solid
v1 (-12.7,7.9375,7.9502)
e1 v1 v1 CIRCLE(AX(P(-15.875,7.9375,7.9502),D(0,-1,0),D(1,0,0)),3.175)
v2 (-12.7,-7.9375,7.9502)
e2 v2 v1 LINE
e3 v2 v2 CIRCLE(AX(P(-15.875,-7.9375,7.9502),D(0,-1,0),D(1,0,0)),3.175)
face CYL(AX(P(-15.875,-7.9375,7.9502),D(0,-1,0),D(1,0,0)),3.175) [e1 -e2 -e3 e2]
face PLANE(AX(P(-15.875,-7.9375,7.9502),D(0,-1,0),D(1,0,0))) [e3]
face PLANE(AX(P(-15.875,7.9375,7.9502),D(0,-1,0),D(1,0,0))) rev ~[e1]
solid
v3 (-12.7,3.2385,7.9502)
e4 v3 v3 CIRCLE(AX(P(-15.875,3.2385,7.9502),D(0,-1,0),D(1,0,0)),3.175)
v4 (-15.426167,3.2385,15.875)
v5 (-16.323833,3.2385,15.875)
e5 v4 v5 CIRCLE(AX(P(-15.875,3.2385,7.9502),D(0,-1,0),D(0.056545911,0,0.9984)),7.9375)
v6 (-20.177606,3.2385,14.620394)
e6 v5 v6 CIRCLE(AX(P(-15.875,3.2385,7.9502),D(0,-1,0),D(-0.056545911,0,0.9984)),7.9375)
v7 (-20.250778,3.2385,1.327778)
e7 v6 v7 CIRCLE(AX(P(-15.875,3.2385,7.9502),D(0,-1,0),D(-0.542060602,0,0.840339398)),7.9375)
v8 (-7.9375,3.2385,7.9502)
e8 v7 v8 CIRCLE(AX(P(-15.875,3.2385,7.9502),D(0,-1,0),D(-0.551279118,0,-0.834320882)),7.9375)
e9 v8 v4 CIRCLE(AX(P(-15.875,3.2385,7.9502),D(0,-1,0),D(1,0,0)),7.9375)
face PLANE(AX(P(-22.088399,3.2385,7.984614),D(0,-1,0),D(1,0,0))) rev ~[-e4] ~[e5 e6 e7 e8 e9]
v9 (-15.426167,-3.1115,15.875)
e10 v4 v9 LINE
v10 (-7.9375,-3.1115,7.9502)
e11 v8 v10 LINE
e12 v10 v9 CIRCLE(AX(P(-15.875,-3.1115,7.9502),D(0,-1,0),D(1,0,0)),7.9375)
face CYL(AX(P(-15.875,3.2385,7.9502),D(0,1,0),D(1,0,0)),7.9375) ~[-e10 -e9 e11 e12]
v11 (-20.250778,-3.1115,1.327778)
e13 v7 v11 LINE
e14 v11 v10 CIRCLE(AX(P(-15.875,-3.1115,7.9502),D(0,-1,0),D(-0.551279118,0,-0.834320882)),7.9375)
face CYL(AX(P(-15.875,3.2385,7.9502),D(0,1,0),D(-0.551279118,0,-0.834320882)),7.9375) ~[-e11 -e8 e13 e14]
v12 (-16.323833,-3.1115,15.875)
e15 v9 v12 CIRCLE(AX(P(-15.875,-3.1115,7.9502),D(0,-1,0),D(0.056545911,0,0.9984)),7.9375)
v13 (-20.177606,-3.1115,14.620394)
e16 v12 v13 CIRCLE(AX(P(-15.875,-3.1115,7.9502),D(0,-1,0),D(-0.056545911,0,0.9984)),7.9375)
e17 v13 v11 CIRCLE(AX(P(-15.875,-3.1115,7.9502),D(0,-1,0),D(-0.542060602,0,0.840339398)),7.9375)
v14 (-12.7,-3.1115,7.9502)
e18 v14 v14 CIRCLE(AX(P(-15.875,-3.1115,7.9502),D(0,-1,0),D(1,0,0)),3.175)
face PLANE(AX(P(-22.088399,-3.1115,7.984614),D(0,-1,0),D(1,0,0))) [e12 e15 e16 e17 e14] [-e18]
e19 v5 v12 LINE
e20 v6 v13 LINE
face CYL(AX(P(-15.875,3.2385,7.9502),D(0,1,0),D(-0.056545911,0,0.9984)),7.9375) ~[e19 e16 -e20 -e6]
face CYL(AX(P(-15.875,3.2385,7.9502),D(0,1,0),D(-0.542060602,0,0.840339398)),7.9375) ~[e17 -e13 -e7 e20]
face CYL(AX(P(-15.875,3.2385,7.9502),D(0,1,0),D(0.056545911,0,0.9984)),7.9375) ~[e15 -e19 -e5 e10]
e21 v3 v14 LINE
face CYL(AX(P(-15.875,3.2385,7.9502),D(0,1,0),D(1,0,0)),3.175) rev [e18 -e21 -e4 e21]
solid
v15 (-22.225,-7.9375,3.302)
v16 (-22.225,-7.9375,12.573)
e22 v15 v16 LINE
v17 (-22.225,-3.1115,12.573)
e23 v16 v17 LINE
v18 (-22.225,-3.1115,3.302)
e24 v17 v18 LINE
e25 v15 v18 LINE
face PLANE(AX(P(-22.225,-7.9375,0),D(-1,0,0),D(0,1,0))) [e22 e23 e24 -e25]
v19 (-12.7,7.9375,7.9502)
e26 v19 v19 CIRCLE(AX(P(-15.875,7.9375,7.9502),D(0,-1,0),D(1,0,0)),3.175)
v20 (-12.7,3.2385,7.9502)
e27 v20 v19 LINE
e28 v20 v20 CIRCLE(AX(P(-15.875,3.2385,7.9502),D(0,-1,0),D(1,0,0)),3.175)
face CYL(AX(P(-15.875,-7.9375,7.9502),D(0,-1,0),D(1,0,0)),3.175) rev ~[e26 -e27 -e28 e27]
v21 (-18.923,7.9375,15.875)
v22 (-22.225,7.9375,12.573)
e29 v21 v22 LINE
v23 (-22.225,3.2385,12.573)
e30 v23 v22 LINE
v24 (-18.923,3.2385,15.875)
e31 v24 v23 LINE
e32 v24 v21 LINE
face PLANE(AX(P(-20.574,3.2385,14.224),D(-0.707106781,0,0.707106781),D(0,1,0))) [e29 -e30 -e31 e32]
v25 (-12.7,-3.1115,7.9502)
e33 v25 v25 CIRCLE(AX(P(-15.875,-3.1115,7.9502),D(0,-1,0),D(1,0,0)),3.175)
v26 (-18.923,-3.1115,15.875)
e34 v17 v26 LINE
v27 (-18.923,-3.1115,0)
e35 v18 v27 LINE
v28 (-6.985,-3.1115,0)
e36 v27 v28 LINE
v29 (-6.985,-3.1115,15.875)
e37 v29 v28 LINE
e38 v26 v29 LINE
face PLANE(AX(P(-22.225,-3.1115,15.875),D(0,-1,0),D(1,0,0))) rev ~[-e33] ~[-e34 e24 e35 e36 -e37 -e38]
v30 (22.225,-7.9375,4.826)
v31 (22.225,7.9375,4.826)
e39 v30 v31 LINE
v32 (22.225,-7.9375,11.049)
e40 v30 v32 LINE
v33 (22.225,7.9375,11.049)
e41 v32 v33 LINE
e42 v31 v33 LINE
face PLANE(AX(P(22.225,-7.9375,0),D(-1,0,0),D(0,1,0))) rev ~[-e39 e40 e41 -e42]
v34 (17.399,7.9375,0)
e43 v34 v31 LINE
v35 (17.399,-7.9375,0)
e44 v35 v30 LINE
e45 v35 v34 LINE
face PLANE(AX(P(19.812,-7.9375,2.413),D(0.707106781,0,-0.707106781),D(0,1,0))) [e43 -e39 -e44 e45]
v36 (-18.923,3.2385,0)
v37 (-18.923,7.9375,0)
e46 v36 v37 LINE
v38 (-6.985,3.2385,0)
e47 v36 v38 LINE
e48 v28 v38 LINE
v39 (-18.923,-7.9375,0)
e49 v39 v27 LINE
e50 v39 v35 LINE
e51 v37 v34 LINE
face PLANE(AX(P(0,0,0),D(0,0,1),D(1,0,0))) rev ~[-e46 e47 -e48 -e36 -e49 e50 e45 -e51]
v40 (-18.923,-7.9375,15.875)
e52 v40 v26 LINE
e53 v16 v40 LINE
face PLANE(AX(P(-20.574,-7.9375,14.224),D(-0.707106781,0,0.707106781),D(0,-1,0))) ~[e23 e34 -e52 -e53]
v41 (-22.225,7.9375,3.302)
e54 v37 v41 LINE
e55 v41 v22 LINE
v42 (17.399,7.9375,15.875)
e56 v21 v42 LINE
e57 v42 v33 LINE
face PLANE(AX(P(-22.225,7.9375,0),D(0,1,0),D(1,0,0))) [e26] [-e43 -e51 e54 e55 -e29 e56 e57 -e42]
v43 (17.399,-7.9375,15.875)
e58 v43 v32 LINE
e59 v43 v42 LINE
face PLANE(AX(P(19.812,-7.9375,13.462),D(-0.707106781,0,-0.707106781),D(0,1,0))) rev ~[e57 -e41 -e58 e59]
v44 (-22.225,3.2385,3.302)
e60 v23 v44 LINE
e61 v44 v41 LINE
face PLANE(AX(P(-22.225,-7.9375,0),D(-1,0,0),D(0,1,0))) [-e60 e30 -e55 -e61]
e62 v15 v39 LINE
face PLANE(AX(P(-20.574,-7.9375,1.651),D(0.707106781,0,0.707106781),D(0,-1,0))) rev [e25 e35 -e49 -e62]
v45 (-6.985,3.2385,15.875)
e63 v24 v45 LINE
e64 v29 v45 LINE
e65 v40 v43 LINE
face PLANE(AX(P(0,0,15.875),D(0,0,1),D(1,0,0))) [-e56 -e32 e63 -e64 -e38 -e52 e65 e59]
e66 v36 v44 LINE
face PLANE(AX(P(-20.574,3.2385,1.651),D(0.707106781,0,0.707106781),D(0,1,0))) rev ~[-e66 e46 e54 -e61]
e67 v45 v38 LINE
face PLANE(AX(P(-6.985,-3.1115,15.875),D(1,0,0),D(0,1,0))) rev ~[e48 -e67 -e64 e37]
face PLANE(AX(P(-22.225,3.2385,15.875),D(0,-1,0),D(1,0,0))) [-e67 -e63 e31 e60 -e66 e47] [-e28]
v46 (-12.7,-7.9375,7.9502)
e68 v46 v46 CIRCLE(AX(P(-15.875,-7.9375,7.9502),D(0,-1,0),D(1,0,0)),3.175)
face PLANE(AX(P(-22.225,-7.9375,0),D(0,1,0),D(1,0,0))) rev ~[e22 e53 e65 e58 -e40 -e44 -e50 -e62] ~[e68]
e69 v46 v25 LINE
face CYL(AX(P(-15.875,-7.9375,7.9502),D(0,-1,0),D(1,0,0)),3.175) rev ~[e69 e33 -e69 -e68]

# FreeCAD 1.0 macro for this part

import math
import FreeCAD as App
import Part
import Sketcher
Q = App.Units.Quantity


def edges_at(feature, points):
    """Names of the edges that pass closest to the given points."""
    edges = feature.Shape.Edges
    near = lambda p: min(range(len(edges)), key=lambda i: edges[i].distToShape(Part.Vertex(*p))[0])
    return sorted({f"Edge{near(p) + 1}" for p in points})


def add_polygon(sketch, points):
    """Adds a closed chain of lines whose ends are joined by coincident constraints."""
    first, n = sketch.GeometryCount, len(points)
    for a, b in zip(points, points[1:] + points[:1]):
        sketch.addGeometry(Part.LineSegment(App.Vector(*a, 0), App.Vector(*b, 0)), False)
    for i in range(n):
        sketch.addConstraint(Sketcher.Constraint("Coincident", first + i, 2, first + (i + 1) % n, 1))

doc = App.newDocument("Part")
body = doc.addObject("PartDesign::Body", "Body")

sketch1 = body.newObject("Sketcher::SketchObject", "Sketch")
sketch1.AttachmentSupport = (doc.getObject("XY_Plane"), [""])
sketch1.MapMode = "FlatFace"
add_polygon(sketch1, [(-22, 8), (-22, -8), (22, -8), (22, 8)])
sketch1.addConstraint([
    Sketcher.Constraint("Vertical", 0),
    Sketcher.Constraint("Horizontal", 1),
    Sketcher.Constraint("Vertical", 2),
    Sketcher.Constraint("Horizontal", 3),
    Sketcher.Constraint("Symmetric", 0, 2, 2, 2, -1, 1),
    Sketcher.Constraint("DistanceX", 1, 1, 1, 2, Q("1.75 in")),
    Sketcher.Constraint("DistanceY", 0, 2, 0, 1, Q("0.625 in")),
])
pad1 = body.newObject("PartDesign::Pad", "Pad")
pad1.Profile = sketch1
pad1.Length = Q("0.625 in")

sketch2 = body.newObject("Sketcher::SketchObject", "Sketch001")
sketch2.AttachmentSupport = (doc.getObject("XY_Plane"), [""])
sketch2.MapMode = "FlatFace"
sketch2.AttachmentOffset = App.Placement(App.Vector(0, 0, 0.625 * 25.4), App.Rotation())
add_polygon(sketch2, [(-22, 3), (-22, -3), (-7, -3), (-7, 3)])
sketch2.addConstraint([
    Sketcher.Constraint("Vertical", 0),
    Sketcher.Constraint("Horizontal", 1),
    Sketcher.Constraint("Vertical", 2),
    Sketcher.Constraint("Horizontal", 3),
    Sketcher.Constraint("DistanceX", 1, 1, 1, 2, Q("0.6 in")),
    Sketcher.Constraint("DistanceY", 0, 2, 0, 1, Q("0.25 in")),
    Sketcher.Constraint("DistanceX", 0, 2, -1, 1, Q("0.875 in")),
    Sketcher.Constraint("DistanceY", 0, 2, -1, 1, Q("0.1225 in")),
])
pocket1 = body.newObject("PartDesign::Pocket", "Pocket")
pocket1.Profile = sketch2
pocket1.Type = "ThroughAll"

sketch3 = body.newObject("Sketcher::SketchObject", "Sketch002")
sketch3.AttachmentSupport = (doc.getObject("XZ_Plane"), [""])
sketch3.MapMode = "FlatFace"
sketch3.AttachmentOffset = App.Placement(App.Vector(0, 0, 0.3125 * 25.4), App.Rotation())
sketch3.addGeometry(Part.Circle(App.Vector(-15.9, 8, 0), App.Vector(0, 0, 1), 3.2), False)
sketch3.addConstraint([
    Sketcher.Constraint("Diameter", 0, Q("0.25 in")),
    Sketcher.Constraint("DistanceX", 0, 3, -1, 1, Q("0.625 in")),
    Sketcher.Constraint("DistanceY", -1, 1, 0, 3, Q("0.313 in")),
])
pocket2 = body.newObject("PartDesign::Pocket", "Pocket001")
pocket2.Profile = sketch3
pocket2.Type = "ThroughAll"
doc.recompute()

chamfer = body.newObject("PartDesign::Chamfer", "Chamfer")
chamfer.Base = (pocket2, edges_at(pocket2, [
    (-22.225, 5.588, 15.875),
    (-22.225, -5.524, 15.875),
    (-22.225, -5.524, 0),
    (-22.225, 5.588, 0),
]))
chamfer.Size = Q("0.13 in")
doc.recompute()

chamfer2 = body.newObject("PartDesign::Chamfer", "Chamfer001")
chamfer2.Base = (chamfer, edges_at(chamfer, [(22.225, 0, 15.875), (22.225, 0, 0)]))
chamfer2.Size = Q("0.19 in")
body2 = doc.addObject("PartDesign::Body", "Body001")

sketch4 = body2.newObject("Sketcher::SketchObject", "Sketch003")
sketch4.AttachmentSupport = (doc.getObject("XZ_Plane001"), [""])
sketch4.MapMode = "FlatFace"
sketch4.AttachmentOffset = App.Placement(App.Vector(0, 0, 0.3125 * 25.4), App.Rotation())
sketch4.addGeometry(Part.Circle(App.Vector(-15.9, 8, 0), App.Vector(0, 0, 1), 3.2), False)
sketch4.addConstraint([
    Sketcher.Constraint("Diameter", 0, Q("0.25 in")),
    Sketcher.Constraint("DistanceX", 0, 3, -1, 1, Q("0.625 in")),
    Sketcher.Constraint("DistanceY", -1, 1, 0, 3, Q("0.313 in")),
])
pad2 = body2.newObject("PartDesign::Pad", "Pad001")
pad2.Profile = sketch4
pad2.Length = Q("0.625 in")
pad2.Reversed = True
body3 = doc.addObject("PartDesign::Body", "Body002")

sketch5 = body3.newObject("Sketcher::SketchObject", "Sketch004")
sketch5.AttachmentSupport = (doc.getObject("XZ_Plane002"), [""])
sketch5.MapMode = "FlatFace"
sketch5.AttachmentOffset = App.Placement(App.Vector(0, 0, -0.1275 * 25.4), App.Rotation())
sketch5.addGeometry([
    Part.ArcOfCircle(Part.Circle(App.Vector(-15.9, 8, 0), App.Vector(0, 0, 1), 7.9), math.radians(123), math.radians(237)),
    Part.ArcOfCircle(Part.Circle(App.Vector(-15.9, 8, 0), App.Vector(0, 0, 1), 7.9), math.radians(-123), math.radians(0)),
    Part.ArcOfCircle(Part.Circle(App.Vector(-15.9, 8, 0), App.Vector(0, 0, 1), 7.9), math.radians(0), math.radians(87)),
    Part.ArcOfCircle(Part.Circle(App.Vector(-15.9, 8, 0), App.Vector(0, 0, 1), 7.9), math.radians(86.76), math.radians(93.24)),
    Part.ArcOfCircle(Part.Circle(App.Vector(-15.9, 8, 0), App.Vector(0, 0, 1), 7.9), math.radians(93), math.radians(123)),
    Part.Circle(App.Vector(-15.9, 8, 0), App.Vector(0, 0, 1), 3.2),
], False)
sketch5.addConstraint([
    Sketcher.Constraint("Tangent", 0, 2, 1, 1),
    Sketcher.Constraint("Tangent", 1, 2, 2, 1),
    Sketcher.Constraint("Tangent", 2, 2, 3, 1),
    Sketcher.Constraint("Tangent", 3, 2, 4, 1),
    Sketcher.Constraint("Tangent", 4, 2, 0, 1),
    Sketcher.Constraint("Coincident", 2, 3, 0, 3),
    Sketcher.Constraint("Coincident", 5, 3, 0, 3),
    Sketcher.Constraint("Horizontal", 5, 3, 1, 2),
    Sketcher.Constraint("Horizontal", 2, 2, 3, 2),
    Sketcher.Constraint("Diameter", 5, Q("0.25 in")),
    Sketcher.Constraint("Radius", 0, Q("0.3125 in")),
    Sketcher.Constraint("DistanceX", 0, 3, -1, 1, Q("0.625 in")),
    Sketcher.Constraint("DistanceY", -1, 1, 0, 3, Q("0.313 in")),
    Sketcher.Constraint("DistanceY", -1, 1, 2, 2, Q("0.625 in")),
    Sketcher.Constraint("DistanceY", -1, 1, 0, 2, Q("1.327778 mm")),
    Sketcher.Constraint("DistanceX", 4, 2, 2, 2, Q("4.751439 mm")),
])
pad3 = body3.newObject("PartDesign::Pad", "Pad002")
pad3.Profile = sketch5
pad3.Length = Q("0.25 in")

doc.recompute()
